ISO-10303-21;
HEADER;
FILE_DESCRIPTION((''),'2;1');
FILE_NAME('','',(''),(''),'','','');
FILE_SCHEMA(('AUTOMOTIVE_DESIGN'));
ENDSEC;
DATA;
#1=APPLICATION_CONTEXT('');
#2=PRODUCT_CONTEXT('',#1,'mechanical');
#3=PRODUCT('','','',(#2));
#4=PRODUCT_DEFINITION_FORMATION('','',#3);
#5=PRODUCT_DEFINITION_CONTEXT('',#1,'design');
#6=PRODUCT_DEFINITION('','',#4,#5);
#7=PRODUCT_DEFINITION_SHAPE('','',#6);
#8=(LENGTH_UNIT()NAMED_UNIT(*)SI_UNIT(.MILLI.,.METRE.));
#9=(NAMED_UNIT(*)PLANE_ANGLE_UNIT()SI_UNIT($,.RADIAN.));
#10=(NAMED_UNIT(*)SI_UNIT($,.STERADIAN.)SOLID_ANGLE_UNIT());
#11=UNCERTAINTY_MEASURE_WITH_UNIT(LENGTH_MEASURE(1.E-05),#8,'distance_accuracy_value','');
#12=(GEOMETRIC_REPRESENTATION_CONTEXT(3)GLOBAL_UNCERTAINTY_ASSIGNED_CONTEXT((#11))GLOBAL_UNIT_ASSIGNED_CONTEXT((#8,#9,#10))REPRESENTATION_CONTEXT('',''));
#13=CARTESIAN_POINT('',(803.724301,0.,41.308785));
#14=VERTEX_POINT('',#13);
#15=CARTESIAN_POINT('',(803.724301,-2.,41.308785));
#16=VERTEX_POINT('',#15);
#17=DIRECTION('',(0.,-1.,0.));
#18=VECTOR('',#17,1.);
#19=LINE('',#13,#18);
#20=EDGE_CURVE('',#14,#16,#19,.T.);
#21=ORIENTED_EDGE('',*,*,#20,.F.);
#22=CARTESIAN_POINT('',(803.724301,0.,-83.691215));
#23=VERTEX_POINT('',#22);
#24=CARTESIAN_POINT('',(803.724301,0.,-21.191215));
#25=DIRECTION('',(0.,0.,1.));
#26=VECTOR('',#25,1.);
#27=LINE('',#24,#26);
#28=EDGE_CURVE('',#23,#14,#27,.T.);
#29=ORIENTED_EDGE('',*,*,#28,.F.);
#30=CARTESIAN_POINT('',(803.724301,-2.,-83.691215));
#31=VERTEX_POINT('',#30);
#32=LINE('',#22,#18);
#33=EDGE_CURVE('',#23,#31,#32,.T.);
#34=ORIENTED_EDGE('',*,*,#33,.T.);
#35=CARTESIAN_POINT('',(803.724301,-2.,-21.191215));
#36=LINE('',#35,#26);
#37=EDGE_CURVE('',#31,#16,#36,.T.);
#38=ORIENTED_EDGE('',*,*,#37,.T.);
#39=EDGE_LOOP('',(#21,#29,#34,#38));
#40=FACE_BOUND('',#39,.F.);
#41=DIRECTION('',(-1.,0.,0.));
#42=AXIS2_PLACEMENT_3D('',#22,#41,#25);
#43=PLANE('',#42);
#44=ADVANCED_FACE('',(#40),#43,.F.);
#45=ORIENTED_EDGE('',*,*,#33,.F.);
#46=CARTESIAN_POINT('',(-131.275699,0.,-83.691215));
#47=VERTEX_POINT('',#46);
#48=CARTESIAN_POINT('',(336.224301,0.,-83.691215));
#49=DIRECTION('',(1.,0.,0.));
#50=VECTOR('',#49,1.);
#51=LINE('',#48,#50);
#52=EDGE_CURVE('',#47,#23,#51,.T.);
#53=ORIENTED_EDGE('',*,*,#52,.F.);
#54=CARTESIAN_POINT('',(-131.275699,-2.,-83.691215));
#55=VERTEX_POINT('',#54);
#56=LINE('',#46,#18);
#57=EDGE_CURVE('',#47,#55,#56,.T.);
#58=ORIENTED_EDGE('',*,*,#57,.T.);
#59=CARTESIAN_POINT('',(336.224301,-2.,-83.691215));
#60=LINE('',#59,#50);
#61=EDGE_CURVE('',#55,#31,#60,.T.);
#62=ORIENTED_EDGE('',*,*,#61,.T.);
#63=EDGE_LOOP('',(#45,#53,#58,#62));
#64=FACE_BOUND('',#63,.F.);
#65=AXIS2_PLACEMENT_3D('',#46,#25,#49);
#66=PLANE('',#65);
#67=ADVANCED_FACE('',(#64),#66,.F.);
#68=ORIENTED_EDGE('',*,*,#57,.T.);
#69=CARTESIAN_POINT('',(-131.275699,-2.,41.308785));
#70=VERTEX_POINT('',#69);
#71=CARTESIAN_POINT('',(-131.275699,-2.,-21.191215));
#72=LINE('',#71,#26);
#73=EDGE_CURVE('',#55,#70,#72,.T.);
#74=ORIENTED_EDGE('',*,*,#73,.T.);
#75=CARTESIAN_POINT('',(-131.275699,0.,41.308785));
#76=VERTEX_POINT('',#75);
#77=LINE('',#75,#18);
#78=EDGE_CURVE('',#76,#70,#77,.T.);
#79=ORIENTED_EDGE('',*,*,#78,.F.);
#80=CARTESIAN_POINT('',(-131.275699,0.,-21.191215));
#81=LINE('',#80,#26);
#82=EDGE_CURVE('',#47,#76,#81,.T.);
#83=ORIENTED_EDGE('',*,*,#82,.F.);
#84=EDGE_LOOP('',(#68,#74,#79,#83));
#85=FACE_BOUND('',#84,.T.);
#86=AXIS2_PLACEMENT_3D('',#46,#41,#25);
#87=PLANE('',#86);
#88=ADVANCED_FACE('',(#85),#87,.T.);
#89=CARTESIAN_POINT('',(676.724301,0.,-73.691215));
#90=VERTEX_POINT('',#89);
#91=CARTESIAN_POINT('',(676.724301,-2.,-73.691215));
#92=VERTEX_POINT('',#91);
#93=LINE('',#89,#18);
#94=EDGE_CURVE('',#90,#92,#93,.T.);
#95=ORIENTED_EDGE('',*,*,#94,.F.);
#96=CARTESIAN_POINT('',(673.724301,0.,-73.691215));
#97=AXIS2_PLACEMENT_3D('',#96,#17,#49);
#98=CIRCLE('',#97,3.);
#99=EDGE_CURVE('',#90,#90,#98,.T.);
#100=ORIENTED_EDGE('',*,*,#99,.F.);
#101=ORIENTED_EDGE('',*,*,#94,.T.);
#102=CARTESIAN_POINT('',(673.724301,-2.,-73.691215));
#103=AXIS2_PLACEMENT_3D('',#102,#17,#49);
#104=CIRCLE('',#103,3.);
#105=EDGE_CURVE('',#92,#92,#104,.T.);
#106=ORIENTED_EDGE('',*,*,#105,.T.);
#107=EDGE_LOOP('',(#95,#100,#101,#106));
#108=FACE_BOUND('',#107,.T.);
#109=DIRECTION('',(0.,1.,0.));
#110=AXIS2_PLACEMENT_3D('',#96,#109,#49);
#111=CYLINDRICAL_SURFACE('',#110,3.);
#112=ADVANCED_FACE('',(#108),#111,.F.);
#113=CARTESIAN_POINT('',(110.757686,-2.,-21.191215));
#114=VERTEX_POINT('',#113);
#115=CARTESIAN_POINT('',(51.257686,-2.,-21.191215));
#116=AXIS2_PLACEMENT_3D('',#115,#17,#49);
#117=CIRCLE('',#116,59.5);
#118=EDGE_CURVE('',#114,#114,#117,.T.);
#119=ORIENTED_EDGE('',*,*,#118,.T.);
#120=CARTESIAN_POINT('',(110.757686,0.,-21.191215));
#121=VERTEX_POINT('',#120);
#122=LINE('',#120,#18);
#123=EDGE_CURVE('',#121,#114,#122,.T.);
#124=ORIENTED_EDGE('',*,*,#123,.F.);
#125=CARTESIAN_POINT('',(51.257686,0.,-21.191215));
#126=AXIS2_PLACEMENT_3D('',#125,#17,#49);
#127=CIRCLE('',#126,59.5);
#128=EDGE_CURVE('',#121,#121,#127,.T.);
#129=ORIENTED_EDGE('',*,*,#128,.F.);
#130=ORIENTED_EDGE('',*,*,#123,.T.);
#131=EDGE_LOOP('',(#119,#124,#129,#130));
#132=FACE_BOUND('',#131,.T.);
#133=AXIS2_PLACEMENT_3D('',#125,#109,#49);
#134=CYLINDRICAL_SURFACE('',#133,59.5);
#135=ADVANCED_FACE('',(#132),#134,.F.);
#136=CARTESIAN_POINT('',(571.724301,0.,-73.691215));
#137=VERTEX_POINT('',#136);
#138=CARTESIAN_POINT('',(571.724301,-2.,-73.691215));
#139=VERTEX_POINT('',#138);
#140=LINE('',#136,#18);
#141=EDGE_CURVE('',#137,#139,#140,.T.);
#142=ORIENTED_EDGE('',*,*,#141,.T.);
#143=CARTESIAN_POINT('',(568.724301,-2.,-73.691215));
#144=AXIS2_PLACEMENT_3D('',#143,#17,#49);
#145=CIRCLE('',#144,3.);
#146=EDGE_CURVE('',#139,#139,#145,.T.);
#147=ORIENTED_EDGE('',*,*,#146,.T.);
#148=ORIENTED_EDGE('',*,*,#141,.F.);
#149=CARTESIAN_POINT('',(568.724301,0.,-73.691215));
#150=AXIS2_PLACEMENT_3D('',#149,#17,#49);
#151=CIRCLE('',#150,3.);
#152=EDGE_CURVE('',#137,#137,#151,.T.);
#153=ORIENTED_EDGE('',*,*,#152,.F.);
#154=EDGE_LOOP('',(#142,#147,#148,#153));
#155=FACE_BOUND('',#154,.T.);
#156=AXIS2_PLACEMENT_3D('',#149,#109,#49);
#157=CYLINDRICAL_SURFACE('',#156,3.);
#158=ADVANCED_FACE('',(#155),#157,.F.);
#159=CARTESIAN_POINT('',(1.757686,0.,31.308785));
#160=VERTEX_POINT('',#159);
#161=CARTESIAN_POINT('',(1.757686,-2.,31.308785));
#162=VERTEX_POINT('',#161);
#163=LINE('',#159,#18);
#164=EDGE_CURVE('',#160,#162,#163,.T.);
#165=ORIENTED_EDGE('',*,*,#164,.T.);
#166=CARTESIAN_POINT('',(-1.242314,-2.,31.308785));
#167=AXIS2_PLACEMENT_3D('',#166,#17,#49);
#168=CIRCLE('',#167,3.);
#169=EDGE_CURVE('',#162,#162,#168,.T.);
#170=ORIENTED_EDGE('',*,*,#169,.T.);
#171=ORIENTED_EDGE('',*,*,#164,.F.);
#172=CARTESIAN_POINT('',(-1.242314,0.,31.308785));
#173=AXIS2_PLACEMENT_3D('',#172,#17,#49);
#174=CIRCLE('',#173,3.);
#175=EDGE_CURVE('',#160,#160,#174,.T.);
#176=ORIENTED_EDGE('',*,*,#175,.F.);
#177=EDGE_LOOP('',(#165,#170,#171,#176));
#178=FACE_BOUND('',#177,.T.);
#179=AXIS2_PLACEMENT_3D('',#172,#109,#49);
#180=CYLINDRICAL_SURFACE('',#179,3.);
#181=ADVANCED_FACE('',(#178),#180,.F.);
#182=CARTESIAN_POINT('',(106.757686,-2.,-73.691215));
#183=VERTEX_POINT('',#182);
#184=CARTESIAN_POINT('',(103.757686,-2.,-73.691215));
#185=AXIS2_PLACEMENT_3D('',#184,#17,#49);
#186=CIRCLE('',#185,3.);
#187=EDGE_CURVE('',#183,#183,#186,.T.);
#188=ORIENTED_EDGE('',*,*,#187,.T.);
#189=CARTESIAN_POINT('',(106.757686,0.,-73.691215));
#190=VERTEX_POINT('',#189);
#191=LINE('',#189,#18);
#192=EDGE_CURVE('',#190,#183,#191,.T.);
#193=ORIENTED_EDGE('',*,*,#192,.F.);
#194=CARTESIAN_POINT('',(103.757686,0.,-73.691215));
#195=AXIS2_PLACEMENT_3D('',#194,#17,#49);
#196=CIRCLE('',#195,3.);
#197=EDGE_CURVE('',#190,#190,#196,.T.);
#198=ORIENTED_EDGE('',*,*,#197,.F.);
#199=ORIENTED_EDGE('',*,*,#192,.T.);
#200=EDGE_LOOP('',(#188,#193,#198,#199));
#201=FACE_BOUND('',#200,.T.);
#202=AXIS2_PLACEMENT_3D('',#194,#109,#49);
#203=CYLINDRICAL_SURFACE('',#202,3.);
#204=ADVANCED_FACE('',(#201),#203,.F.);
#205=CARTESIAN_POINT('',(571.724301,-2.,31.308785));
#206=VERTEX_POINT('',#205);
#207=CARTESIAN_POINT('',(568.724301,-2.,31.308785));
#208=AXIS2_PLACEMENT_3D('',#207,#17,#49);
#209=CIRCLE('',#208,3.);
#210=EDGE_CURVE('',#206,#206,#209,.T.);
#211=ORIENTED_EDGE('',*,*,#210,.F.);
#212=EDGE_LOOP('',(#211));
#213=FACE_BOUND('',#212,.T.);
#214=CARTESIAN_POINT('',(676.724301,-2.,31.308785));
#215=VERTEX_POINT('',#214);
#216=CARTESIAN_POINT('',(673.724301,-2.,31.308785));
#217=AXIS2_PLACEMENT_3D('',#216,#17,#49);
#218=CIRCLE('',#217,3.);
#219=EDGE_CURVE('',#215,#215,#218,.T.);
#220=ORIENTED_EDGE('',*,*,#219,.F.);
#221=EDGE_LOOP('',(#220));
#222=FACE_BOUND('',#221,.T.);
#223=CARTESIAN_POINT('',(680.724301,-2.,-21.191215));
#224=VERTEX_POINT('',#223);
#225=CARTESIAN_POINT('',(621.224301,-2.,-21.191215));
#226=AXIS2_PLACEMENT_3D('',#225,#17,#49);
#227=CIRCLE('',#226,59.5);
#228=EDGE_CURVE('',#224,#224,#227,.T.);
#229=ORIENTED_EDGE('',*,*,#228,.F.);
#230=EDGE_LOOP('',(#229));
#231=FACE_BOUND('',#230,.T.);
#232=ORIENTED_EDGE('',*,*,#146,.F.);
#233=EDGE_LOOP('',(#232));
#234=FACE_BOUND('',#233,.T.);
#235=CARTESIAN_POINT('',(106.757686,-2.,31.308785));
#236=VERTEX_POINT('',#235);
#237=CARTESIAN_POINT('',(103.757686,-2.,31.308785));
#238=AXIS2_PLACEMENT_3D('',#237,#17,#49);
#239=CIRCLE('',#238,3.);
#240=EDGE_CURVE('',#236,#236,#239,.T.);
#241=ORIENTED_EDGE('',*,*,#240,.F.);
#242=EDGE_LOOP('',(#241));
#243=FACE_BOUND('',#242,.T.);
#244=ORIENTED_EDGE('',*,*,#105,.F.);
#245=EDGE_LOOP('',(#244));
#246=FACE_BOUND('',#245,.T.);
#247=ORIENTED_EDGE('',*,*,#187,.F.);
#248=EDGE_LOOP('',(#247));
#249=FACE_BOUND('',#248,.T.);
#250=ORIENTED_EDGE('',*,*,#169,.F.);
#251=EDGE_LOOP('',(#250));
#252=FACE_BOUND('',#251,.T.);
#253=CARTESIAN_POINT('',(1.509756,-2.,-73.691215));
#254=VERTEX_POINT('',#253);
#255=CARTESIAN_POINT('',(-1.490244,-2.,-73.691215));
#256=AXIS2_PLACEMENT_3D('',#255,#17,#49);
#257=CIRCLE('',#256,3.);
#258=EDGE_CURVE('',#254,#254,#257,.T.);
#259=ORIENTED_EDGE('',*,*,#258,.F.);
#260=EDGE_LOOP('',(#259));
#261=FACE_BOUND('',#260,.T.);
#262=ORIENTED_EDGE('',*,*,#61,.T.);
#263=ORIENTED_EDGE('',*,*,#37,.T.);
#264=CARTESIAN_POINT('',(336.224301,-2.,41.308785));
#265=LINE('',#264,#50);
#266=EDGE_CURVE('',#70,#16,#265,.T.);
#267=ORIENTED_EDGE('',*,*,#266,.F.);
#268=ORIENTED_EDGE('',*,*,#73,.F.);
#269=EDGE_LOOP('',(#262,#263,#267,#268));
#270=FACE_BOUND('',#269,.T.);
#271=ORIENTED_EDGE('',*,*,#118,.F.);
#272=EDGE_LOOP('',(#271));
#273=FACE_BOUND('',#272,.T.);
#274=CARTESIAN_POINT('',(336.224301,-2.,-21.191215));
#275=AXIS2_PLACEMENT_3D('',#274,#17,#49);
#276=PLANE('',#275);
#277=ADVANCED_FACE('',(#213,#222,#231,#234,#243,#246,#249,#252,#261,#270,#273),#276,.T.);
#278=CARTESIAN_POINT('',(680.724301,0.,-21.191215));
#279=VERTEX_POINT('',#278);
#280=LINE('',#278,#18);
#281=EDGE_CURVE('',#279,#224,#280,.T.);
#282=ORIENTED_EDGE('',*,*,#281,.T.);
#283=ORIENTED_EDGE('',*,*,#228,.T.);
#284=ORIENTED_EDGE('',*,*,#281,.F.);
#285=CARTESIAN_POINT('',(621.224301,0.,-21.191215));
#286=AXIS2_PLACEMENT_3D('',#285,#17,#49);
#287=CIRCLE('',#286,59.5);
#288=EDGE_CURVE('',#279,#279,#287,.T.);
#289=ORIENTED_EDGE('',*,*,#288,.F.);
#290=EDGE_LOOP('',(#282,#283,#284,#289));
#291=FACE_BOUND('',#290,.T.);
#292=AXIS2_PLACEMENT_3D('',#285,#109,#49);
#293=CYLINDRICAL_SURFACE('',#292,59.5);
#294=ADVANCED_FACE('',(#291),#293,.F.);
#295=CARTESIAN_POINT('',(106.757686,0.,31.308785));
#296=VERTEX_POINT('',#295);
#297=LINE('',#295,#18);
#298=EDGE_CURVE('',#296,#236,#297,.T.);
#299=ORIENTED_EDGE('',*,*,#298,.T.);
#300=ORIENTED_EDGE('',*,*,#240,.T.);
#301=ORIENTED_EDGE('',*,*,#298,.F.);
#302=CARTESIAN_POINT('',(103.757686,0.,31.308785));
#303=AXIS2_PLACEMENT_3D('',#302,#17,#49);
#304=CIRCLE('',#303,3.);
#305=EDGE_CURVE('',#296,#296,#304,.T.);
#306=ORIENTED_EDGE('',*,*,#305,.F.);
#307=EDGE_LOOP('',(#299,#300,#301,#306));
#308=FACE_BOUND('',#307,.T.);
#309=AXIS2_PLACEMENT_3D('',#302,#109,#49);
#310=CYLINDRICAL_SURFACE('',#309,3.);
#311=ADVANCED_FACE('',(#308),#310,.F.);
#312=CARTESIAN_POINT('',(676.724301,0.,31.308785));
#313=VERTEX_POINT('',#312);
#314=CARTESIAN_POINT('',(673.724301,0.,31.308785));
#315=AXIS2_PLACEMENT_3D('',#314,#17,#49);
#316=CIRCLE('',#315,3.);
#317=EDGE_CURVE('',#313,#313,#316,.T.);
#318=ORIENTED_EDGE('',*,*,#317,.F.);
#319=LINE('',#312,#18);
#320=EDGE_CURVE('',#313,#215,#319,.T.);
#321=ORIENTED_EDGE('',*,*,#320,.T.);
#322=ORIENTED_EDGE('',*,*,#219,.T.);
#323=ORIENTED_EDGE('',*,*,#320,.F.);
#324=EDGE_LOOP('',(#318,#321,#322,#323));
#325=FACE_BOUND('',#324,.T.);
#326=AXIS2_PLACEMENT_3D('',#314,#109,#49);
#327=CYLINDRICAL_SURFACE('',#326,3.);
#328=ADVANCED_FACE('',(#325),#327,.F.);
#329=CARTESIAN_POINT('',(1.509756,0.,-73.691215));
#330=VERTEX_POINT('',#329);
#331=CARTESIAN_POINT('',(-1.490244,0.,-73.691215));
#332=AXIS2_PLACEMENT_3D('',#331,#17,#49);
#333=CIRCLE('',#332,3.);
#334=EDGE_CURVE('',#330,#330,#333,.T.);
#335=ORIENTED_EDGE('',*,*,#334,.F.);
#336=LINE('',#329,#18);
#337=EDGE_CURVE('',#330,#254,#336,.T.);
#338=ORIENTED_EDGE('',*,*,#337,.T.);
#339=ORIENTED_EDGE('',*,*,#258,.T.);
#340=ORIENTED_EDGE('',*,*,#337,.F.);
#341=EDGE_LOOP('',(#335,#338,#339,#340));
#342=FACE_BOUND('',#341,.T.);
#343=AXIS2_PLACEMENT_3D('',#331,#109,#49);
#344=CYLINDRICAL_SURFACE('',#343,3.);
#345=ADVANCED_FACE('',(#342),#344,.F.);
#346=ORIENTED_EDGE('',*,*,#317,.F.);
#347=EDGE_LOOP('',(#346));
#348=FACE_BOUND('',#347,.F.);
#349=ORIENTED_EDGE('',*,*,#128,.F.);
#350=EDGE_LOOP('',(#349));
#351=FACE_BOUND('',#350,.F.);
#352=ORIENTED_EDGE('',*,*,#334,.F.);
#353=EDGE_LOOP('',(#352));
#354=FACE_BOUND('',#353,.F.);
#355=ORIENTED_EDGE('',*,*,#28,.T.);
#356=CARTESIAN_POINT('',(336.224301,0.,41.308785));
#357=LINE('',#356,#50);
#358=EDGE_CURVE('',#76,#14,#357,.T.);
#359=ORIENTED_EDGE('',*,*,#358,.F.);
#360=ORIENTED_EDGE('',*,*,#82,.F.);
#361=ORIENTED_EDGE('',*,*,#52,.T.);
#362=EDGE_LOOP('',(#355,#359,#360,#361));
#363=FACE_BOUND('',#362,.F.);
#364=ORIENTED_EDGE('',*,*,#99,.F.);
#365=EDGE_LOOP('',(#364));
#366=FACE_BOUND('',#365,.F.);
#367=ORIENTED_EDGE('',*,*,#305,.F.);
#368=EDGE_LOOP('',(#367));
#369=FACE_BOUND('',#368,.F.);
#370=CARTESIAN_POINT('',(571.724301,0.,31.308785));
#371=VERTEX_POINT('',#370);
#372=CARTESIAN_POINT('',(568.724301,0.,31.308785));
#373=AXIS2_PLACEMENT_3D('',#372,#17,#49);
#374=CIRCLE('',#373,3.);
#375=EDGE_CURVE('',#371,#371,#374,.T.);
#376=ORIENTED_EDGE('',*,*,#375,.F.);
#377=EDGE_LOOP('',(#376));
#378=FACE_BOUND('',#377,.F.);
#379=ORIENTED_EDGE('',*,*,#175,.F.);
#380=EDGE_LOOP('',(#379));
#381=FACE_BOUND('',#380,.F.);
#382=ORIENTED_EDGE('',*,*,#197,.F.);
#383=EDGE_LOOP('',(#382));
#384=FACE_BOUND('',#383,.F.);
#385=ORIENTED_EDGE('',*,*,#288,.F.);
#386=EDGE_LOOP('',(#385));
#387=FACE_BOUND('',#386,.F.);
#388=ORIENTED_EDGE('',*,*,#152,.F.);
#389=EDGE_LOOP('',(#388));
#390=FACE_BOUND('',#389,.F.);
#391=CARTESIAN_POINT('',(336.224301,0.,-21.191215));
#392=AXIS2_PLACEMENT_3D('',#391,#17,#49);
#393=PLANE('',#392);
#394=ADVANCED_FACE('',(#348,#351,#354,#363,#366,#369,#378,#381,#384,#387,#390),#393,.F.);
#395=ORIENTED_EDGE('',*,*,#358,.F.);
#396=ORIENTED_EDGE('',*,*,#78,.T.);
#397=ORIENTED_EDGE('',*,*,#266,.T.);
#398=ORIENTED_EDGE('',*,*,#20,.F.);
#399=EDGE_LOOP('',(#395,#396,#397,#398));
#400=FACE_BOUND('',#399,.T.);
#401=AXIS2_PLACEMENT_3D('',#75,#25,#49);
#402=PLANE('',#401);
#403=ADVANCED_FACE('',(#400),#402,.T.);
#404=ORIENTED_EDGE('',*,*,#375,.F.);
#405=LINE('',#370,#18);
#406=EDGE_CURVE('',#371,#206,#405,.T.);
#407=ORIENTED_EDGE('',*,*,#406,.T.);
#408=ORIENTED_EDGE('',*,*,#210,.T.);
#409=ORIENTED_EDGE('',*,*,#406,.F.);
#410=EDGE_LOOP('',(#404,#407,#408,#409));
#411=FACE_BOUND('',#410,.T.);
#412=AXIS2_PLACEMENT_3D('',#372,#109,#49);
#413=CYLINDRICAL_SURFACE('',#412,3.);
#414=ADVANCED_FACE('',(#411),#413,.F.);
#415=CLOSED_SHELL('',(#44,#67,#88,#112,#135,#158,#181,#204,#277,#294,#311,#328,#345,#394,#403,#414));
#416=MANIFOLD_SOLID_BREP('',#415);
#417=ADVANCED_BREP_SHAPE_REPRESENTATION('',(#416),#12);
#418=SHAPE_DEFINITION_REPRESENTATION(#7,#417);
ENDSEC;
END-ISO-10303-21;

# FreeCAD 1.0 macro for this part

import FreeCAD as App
import Part
import Sketcher
from FreeCAD import Vector

doc = App.newDocument("Part")
params = doc.addObject("Spreadsheet::Sheet", "Params")
for row, (alias, value) in enumerate([
    ("sketch1_diameter", "6 mm"),
    ("sketch1_diameter2", "119 mm"),
    ("sketch1_width", "935 mm"),
    ("sketch1_height", "125 mm"),
    ("pad1_length", "2 mm"),
], start=1):
    params.set(f"A{row}", alias)
    params.set(f"B{row}", "=" + value)
    params.setAlias(f"B{row}", alias)

body = doc.addObject("PartDesign::Body", "Body")

# Sketch on XZ plane
sketch1 = doc.addObject("Sketcher::SketchObject", "Sketch")
body.addObject(sketch1)
sketch1.AttachmentSupport = (doc.XZ_Plane, [""])
sketch1.MapMode = "FlatFace"
sketch1.addGeometry([
    Part.LineSegment(Vector(-131.3, 41.3, 0), Vector(-131.3, -83.7, 0)),  # 0
    Part.LineSegment(Vector(-131.3, -83.7, 0), Vector(803.7, -83.7, 0)),  # 1
    Part.LineSegment(Vector(803.7, -83.7, 0), Vector(803.7, 41.3, 0)),  # 2
    Part.LineSegment(Vector(803.7, 41.3, 0), Vector(-131.3, 41.3, 0)),  # 3
    Part.Circle(Vector(-1.5, -73.7, 0), Vector(0, 0, 1), 3),  # 4
    Part.Circle(Vector(103.8, -73.7, 0), Vector(0, 0, 1), 3),  # 5
    Part.Circle(Vector(568.7, -73.7, 0), Vector(0, 0, 1), 3),  # 6
    Part.Circle(Vector(673.7, -73.7, 0), Vector(0, 0, 1), 3),  # 7
    Part.Circle(Vector(51.3, -21.2, 0), Vector(0, 0, 1), 59.5),  # 8
    Part.Circle(Vector(-1.2, 31.3, 0), Vector(0, 0, 1), 3),  # 9
    Part.Circle(Vector(103.8, 31.3, 0), Vector(0, 0, 1), 3),  # 10
    Part.Circle(Vector(621.2, -21.2, 0), Vector(0, 0, 1), 59.5),  # 11
    Part.Circle(Vector(568.7, 31.3, 0), Vector(0, 0, 1), 3),  # 12
    Part.Circle(Vector(673.7, 31.3, 0), Vector(0, 0, 1), 3),  # 13
], False)
sketch1.addConstraint([
    Sketcher.Constraint("Coincident", 0, 2, 1, 1),
    Sketcher.Constraint("Coincident", 1, 2, 2, 1),
    Sketcher.Constraint("Coincident", 2, 2, 3, 1),
    Sketcher.Constraint("Coincident", 3, 2, 0, 1),
    Sketcher.Constraint("Vertical", 0),
    Sketcher.Constraint("Horizontal", 1),
    Sketcher.Constraint("Vertical", 2),
    Sketcher.Constraint("Horizontal", 3),
    Sketcher.Constraint("Equal", 4, 5),
    Sketcher.Constraint("Equal", 5, 6),
    Sketcher.Constraint("Equal", 6, 7),
    Sketcher.Constraint("Equal", 7, 9),
    Sketcher.Constraint("Equal", 9, 10),
    Sketcher.Constraint("Equal", 8, 11),
    Sketcher.Constraint("Equal", 10, 12),
    Sketcher.Constraint("Equal", 12, 13),
    Sketcher.Constraint("Horizontal", 4, 3, 5, 3),
    Sketcher.Constraint("Horizontal", 5, 3, 6, 3),
    Sketcher.Constraint("Horizontal", 6, 3, 7, 3),
    Sketcher.Constraint("Horizontal", 9, 3, 10, 3),
    Sketcher.Constraint("Horizontal", 8, 3, 11, 3),
    Sketcher.Constraint("Horizontal", 10, 3, 12, 3),
    Sketcher.Constraint("Horizontal", 12, 3, 13, 3),
    Sketcher.Constraint("Vertical", 5, 3, 10, 3),
    Sketcher.Constraint("Vertical", 6, 3, 12, 3),
    Sketcher.Constraint("Vertical", 7, 3, 13, 3),
    Sketcher.Constraint("Diameter", 4, 6.0),
    Sketcher.Constraint("Diameter", 8, 119.0),
    Sketcher.Constraint("DistanceX", 1, 1, 1, 2, 935.0),
    Sketcher.Constraint("DistanceY", 0, 2, 0, 1, 125.0),
    Sketcher.Constraint("DistanceX", 6, 3, 7, 3, 105.0),
    Sketcher.Constraint("DistanceY", 4, 3, 9, 3, 105.0),
    Sketcher.Constraint("DistanceX", 9, 3, 5, 3, 105.0),
    Sketcher.Constraint("DistanceY", 0, 2, 4, 3, 10.0),
    Sketcher.Constraint("DistanceX", 7, 3, 1, 2, 130.0),
    Sketcher.Constraint("DistanceX", 8, 3, 5, 3, 52.5),
    Sketcher.Constraint("DistanceY", 5, 3, 8, 3, 52.5),
    Sketcher.Constraint("DistanceX", 6, 3, 11, 3, 52.5),
    Sketcher.Constraint("DistanceX", -1, 1, 6, 3, 568.724301),
    Sketcher.Constraint("DistanceX", 4, 3, 5, 3, 105.24793),
    Sketcher.Constraint("DistanceX", 4, 3, -1, 1, 1.490244),
    Sketcher.Constraint("DistanceY", 4, 3, -1, 1, 73.691215),
])
sketch1.setExpression("Constraints[26]", "Params.sketch1_diameter")
sketch1.setExpression("Constraints[27]", "Params.sketch1_diameter2")
sketch1.setExpression("Constraints[28]", "Params.sketch1_width")
sketch1.setExpression("Constraints[29]", "Params.sketch1_height")
pad1 = doc.addObject("PartDesign::Pad", "Pad")
body.addObject(pad1)
pad1.Profile = sketch1
pad1.setExpression("Length", "Params.pad1_length")

doc.recompute()
